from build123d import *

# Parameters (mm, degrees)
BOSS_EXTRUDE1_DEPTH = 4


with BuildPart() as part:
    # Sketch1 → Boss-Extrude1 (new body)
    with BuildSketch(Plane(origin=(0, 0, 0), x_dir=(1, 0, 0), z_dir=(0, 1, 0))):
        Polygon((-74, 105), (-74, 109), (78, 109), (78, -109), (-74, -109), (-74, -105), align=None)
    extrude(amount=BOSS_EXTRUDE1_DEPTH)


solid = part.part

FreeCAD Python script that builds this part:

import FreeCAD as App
import Part
import Sketcher
from FreeCAD import Vector


def add_polygon(sketch, points):
    """Adds a closed chain of lines whose ends are joined by coincident constraints."""
    first, n = sketch.GeometryCount, len(points)
    for a, b in zip(points, points[1:] + points[:1]):
        sketch.addGeometry(Part.LineSegment(App.Vector(*a, 0), App.Vector(*b, 0)), False)
    for i in range(n):
        sketch.addConstraint(Sketcher.Constraint("Coincident", first + i, 2, first + (i + 1) % n, 1))

doc = App.newDocument("Part")
body = doc.addObject("PartDesign::Body", "Body")

sketch1 = body.newObject("Sketcher::SketchObject", "Sketch")
sketch1.AttachmentSupport = (doc.getObject("XZ_Plane"), [""])
sketch1.MapMode = "FlatFace"
add_polygon(sketch1, [(-74, -109), (-74, 109), (78, 109), (78, -109)])
sketch1.addConstraint([
    Sketcher.Constraint("Vertical", 0),
    Sketcher.Constraint("Horizontal", 1),
    Sketcher.Constraint("Vertical", 2),
    Sketcher.Constraint("Horizontal", 3),
    Sketcher.Constraint("DistanceX", 1, 1, 1, 2, 152.0),
    Sketcher.Constraint("DistanceY", 0, 1, 0, 2, 218.0),
    Sketcher.Constraint("DistanceX", 0, 2, -1, 1, 74.0),
    Sketcher.Constraint("DistanceY", -1, 1, 0, 2, 109.0),
])
pad1 = body.newObject("PartDesign::Pad", "Pad")
pad1.Profile = sketch1
pad1.Length = 4
pad1.Reversed = True

doc.recompute()
